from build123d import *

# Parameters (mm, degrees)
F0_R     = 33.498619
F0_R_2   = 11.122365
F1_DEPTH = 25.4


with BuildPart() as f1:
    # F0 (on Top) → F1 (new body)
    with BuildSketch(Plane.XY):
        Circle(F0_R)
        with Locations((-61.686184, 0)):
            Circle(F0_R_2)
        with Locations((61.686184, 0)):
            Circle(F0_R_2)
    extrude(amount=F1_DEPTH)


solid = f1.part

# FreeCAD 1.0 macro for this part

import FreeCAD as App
import Part
import Sketcher
Q = App.Units.Quantity

doc = App.newDocument("Part")
body = doc.addObject("PartDesign::Body", "Body")
body.AllowCompound = True

sketch1 = body.newObject("Sketcher::SketchObject", "Sketch")
sketch1.AttachmentSupport = (doc.getObject("XY_Plane"), [""])
sketch1.MapMode = "FlatFace"
sketch1.addGeometry(Part.Circle(App.Vector(0, 0, 0), App.Vector(0, 0, 1), 33.498619), False)
sketch1.addGeometry(Part.Circle(App.Vector(-61.686184, 0, 0), App.Vector(0, 0, 1), 11.122365), False)
sketch1.addGeometry(Part.Circle(App.Vector(61.686184, 0, 0), App.Vector(0, 0, 1), 11.122365), False)
sketch1.addConstraint(Sketcher.Constraint("Coincident", 0, 3, -1, 1))
sketch1.addConstraint(Sketcher.Constraint("Equal", 1, 2))
sketch1.addConstraint(Sketcher.Constraint("Symmetric", 1, 3, 2, 3, -1, 1))
sketch1.addConstraint(Sketcher.Constraint("PointOnObject", 1, 3, -1))
sketch1.addConstraint(Sketcher.Constraint("Diameter", 1, Q("22.24473 mm")))
sketch1.addConstraint(Sketcher.Constraint("Diameter", 0, Q("66.997238 mm")))
sketch1.addConstraint(Sketcher.Constraint("DistanceX", 1, 3, -1, 1, Q("61.686184 mm")))
pad1 = body.newObject("PartDesign::Pad", "Pad")
pad1.Profile = sketch1
pad1.Length = Q("1 in")

doc.recompute()
